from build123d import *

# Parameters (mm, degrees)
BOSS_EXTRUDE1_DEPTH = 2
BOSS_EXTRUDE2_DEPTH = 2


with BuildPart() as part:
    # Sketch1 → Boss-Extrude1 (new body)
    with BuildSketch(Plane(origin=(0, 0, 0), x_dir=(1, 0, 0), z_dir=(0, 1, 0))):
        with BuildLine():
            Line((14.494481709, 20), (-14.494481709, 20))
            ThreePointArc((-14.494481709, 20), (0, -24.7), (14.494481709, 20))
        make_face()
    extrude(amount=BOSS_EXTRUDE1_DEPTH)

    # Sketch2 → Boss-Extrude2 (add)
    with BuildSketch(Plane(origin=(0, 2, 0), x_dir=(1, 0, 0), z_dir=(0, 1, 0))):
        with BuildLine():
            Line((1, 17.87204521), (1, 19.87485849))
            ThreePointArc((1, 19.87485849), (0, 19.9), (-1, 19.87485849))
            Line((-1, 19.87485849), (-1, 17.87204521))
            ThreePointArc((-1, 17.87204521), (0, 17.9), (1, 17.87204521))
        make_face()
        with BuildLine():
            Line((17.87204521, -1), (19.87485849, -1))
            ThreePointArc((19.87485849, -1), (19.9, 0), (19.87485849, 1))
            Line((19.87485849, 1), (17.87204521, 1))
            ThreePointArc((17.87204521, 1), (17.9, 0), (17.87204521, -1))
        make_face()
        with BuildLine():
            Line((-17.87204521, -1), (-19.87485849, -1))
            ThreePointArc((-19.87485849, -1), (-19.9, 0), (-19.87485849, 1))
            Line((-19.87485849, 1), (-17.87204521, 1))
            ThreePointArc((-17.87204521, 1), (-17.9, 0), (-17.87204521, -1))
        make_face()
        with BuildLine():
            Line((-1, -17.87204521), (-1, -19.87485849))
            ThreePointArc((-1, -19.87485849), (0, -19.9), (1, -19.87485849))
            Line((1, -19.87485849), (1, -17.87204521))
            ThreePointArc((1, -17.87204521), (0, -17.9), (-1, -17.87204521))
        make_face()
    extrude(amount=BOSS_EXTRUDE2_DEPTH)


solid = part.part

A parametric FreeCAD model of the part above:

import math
import FreeCAD as App
import Part
import Sketcher

V = App.Vector
Q = App.Units.Quantity

doc = App.newDocument("Part")
body = doc.addObject("PartDesign::Body", "Body")

# Sketch on XZ plane
sketch1 = body.newObject("Sketcher::SketchObject", "Sketch")
sketch1.AttachmentSupport = (doc.getObject("XZ_Plane"), [""])
sketch1.MapMode = "FlatFace"
sketch1.addGeometry(Part.LineSegment(V(14, -20, 0), V(-14, -20, 0)), False)
sketch1.addGeometry(Part.ArcOfCircle(Part.Circle(V(0, 0, 0), V(0, 0, 1), 25), math.radians(-54), math.radians(234)), False)
sketch1.addConstraint(Sketcher.Constraint("Coincident", 0, 1, 1, 1))
sketch1.addConstraint(Sketcher.Constraint("Coincident", 1, 2, 0, 2))
sketch1.addConstraint(Sketcher.Constraint("Horizontal", 0))
sketch1.addConstraint(Sketcher.Constraint("Coincident", 1, 3, -1, 1))
sketch1.addConstraint(Sketcher.Constraint("Radius", 1, Q("24.7 mm")))
sketch1.addConstraint(Sketcher.Constraint("DistanceY", 0, 1, -1, 1, Q("20 mm")))
pad1 = body.newObject("PartDesign::Pad", "Pad")
pad1.Profile = sketch1
pad1.Length = 2
pad1.Reversed = True

# Sketch on XZ plane
sketch2 = body.newObject("Sketcher::SketchObject", "Sketch001")
sketch2.AttachmentSupport = (doc.getObject("XZ_Plane"), [""])
sketch2.MapMode = "FlatFace"
sketch2.AttachmentOffset = App.Placement(V(0, 0, -2), App.Rotation())
sketch2.addGeometry(Part.LineSegment(V(1, -17.9, 0), V(1, -19.9, 0)), False)
sketch2.addGeometry(Part.ArcOfCircle(Part.Circle(V(0, 0, 0), V(0, 0, 1), 19.9), math.radians(-92.88), math.radians(-87.12)), False)
sketch2.addGeometry(Part.LineSegment(V(-1, -19.9, 0), V(-1, -17.9, 0)), False)
sketch2.addGeometry(Part.ArcOfCircle(Part.Circle(V(0, 0, 0), V(0, 0, 1), 17.9), math.radians(-93.2), math.radians(-86.8)), False)
sketch2.addGeometry(Part.LineSegment(V(17.9, 1, 0), V(19.9, 1, 0)), False)
sketch2.addGeometry(Part.ArcOfCircle(Part.Circle(V(0, 0, 0), V(0, 0, 1), 19.9), math.radians(-2.88), math.radians(2.88)), False)
sketch2.addGeometry(Part.LineSegment(V(19.9, -1, 0), V(17.9, -1, 0)), False)
sketch2.addGeometry(Part.ArcOfCircle(Part.Circle(V(0, 0, 0), V(0, 0, 1), 17.9), math.radians(-3.2), math.radians(3.2)), False)
sketch2.addGeometry(Part.LineSegment(V(-19.9, 1, 0), V(-17.9, 1, 0)), False)
sketch2.addGeometry(Part.ArcOfCircle(Part.Circle(V(0, 0, 0), V(0, 0, 1), 17.9), math.radians(176.8), math.radians(183.2)), False)
sketch2.addGeometry(Part.LineSegment(V(-17.9, -1, 0), V(-19.9, -1, 0)), False)
sketch2.addGeometry(Part.ArcOfCircle(Part.Circle(V(0, 0, 0), V(0, 0, 1), 19.9), math.radians(177.12), math.radians(182.88)), False)
sketch2.addGeometry(Part.LineSegment(V(-1, 17.9, 0), V(-1, 19.9, 0)), False)
sketch2.addGeometry(Part.ArcOfCircle(Part.Circle(V(0, 0, 0), V(0, 0, 1), 19.9), math.radians(87.12), math.radians(92.88)), False)
sketch2.addGeometry(Part.LineSegment(V(1, 19.9, 0), V(1, 17.9, 0)), False)
sketch2.addGeometry(Part.ArcOfCircle(Part.Circle(V(0, 0, 0), V(0, 0, 1), 17.9), math.radians(86.8), math.radians(93.2)), False)
sketch2.addConstraint(Sketcher.Constraint("Coincident", 0, 2, 1, 2))
sketch2.addConstraint(Sketcher.Constraint("Coincident", 1, 1, 2, 1))
sketch2.addConstraint(Sketcher.Constraint("Coincident", 2, 2, 3, 1))
sketch2.addConstraint(Sketcher.Constraint("Coincident", 3, 2, 0, 1))
sketch2.addConstraint(Sketcher.Constraint("Coincident", 4, 2, 5, 2))
sketch2.addConstraint(Sketcher.Constraint("Coincident", 5, 1, 6, 1))
sketch2.addConstraint(Sketcher.Constraint("Coincident", 6, 2, 7, 1))
sketch2.addConstraint(Sketcher.Constraint("Coincident", 7, 2, 4, 1))
sketch2.addConstraint(Sketcher.Constraint("Coincident", 8, 2, 9, 1))
sketch2.addConstraint(Sketcher.Constraint("Coincident", 9, 2, 10, 1))
sketch2.addConstraint(Sketcher.Constraint("Coincident", 10, 2, 11, 2))
sketch2.addConstraint(Sketcher.Constraint("Coincident", 11, 1, 8, 1))
sketch2.addConstraint(Sketcher.Constraint("Coincident", 12, 2, 13, 2))
sketch2.addConstraint(Sketcher.Constraint("Coincident", 13, 1, 14, 1))
sketch2.addConstraint(Sketcher.Constraint("Coincident", 14, 2, 15, 1))
sketch2.addConstraint(Sketcher.Constraint("Coincident", 15, 2, 12, 1))
sketch2.addConstraint(Sketcher.Constraint("Vertical", 0))
sketch2.addConstraint(Sketcher.Constraint("Vertical", 2))
sketch2.addConstraint(Sketcher.Constraint("Horizontal", 4))
sketch2.addConstraint(Sketcher.Constraint("Horizontal", 6))
sketch2.addConstraint(Sketcher.Constraint("Horizontal", 8))
sketch2.addConstraint(Sketcher.Constraint("Horizontal", 10))
sketch2.addConstraint(Sketcher.Constraint("Vertical", 12))
sketch2.addConstraint(Sketcher.Constraint("Vertical", 14))
sketch2.addConstraint(Sketcher.Constraint("Coincident", 1, 3, -1, 1))
sketch2.addConstraint(Sketcher.Constraint("Coincident", 3, 3, -1, 1))
sketch2.addConstraint(Sketcher.Constraint("Coincident", 5, 3, -1, 1))
sketch2.addConstraint(Sketcher.Constraint("Coincident", 7, 3, -1, 1))
sketch2.addConstraint(Sketcher.Constraint("Coincident", 9, 3, -1, 1))
sketch2.addConstraint(Sketcher.Constraint("Coincident", 11, 3, -1, 1))
sketch2.addConstraint(Sketcher.Constraint("Coincident", 13, 3, -1, 1))
sketch2.addConstraint(Sketcher.Constraint("Coincident", 15, 3, -1, 1))
sketch2.addConstraint(Sketcher.Constraint("Equal", 1, 5))
sketch2.addConstraint(Sketcher.Constraint("Equal", 3, 7))
sketch2.addConstraint(Sketcher.Constraint("Equal", 7, 9))
sketch2.addConstraint(Sketcher.Constraint("Equal", 5, 11))
sketch2.addConstraint(Sketcher.Constraint("Equal", 11, 13))
sketch2.addConstraint(Sketcher.Constraint("Equal", 9, 15))
sketch2.addConstraint(Sketcher.Constraint("Horizontal", 0, 2, 1, 1))
sketch2.addConstraint(Sketcher.Constraint("Horizontal", 7, 2, 8, 2))
sketch2.addConstraint(Sketcher.Constraint("Horizontal", 6, 2, 9, 2))
sketch2.addConstraint(Sketcher.Constraint("Horizontal", 12, 2, 13, 1))
sketch2.addConstraint(Sketcher.Constraint("Vertical", 4, 2, 5, 1))
sketch2.addConstraint(Sketcher.Constraint("Vertical", 2, 2, 12, 2))
sketch2.addConstraint(Sketcher.Constraint("Radius", 1, Q("19.9 mm")))
sketch2.addConstraint(Sketcher.Constraint("Radius", 3, Q("17.9 mm")))
sketch2.addConstraint(Sketcher.Constraint("DistanceX", -1, 1, 0, 2, Q("1 mm")))
sketch2.addConstraint(Sketcher.Constraint("DistanceY", -1, 1, 4, 2, Q("1 mm")))
pad2 = body.newObject("PartDesign::Pad", "Pad001")
pad2.Profile = sketch2
pad2.Length = 2
pad2.Reversed = True

doc.recompute()
